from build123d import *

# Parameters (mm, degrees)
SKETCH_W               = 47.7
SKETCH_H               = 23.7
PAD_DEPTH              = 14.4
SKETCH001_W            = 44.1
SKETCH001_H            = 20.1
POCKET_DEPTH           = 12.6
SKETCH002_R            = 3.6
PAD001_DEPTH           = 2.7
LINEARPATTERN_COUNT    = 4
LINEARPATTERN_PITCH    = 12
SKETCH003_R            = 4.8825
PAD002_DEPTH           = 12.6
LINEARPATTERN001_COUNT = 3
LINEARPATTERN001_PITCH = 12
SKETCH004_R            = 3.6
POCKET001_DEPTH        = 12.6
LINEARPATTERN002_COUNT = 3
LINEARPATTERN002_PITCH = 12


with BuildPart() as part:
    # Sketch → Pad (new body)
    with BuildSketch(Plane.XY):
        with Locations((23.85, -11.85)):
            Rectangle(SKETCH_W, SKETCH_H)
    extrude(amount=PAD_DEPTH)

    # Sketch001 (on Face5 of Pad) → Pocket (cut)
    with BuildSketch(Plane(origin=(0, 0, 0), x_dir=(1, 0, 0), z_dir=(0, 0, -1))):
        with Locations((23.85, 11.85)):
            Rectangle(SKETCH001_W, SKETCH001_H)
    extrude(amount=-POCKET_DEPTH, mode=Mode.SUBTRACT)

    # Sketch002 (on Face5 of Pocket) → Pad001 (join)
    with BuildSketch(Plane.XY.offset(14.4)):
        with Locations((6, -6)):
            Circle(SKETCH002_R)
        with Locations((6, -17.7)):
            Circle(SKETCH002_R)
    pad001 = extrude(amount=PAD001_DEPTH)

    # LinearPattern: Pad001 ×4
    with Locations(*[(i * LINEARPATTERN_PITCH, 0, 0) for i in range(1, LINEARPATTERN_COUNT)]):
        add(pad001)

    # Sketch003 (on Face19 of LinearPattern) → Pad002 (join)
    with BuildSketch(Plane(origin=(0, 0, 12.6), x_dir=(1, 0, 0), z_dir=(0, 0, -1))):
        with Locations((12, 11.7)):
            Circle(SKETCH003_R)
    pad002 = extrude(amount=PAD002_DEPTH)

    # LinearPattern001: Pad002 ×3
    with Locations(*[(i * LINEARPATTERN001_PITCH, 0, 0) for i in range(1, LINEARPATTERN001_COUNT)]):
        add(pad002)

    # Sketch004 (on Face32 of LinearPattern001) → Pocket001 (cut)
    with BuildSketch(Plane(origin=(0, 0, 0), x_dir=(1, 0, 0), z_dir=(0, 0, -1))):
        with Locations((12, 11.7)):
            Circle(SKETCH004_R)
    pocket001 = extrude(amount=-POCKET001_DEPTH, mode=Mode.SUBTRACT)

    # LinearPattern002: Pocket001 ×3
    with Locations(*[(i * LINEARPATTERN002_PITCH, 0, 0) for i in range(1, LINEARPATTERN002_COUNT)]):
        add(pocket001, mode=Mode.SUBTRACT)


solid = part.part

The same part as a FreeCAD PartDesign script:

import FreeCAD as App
import Part
import Sketcher
from FreeCAD import Vector
Q = App.Units.Quantity

doc = App.newDocument("Part")
body = doc.addObject("PartDesign::Body", "Body")

# Sketch on XY plane
sketch1 = body.newObject("Sketcher::SketchObject", "Sketch")
sketch1.AttachmentSupport = (doc.getObject("XY_Plane"), [""])
sketch1.MapMode = "FlatFace"
sketch1.addGeometry([
    Part.LineSegment(Vector(0, 0, 0), Vector(0, -24, 0)),
    Part.LineSegment(Vector(0, -24, 0), Vector(48, -24, 0)),
    Part.LineSegment(Vector(48, -24, 0), Vector(48, 0, 0)),
    Part.LineSegment(Vector(48, 0, 0), Vector(0, 0, 0)),
], False)
sketch1.addConstraint([
    Sketcher.Constraint("Coincident", 0, 2, 1, 1),
    Sketcher.Constraint("Coincident", 1, 2, 2, 1),
    Sketcher.Constraint("Coincident", 2, 2, 3, 1),
    Sketcher.Constraint("Coincident", 3, 2, 0, 1),
    Sketcher.Constraint("Vertical", 0),
    Sketcher.Constraint("Horizontal", 1),
    Sketcher.Constraint("Vertical", 2),
    Sketcher.Constraint("Horizontal", 3),
    Sketcher.Constraint("Coincident", 3, 2, -1, 1),
    Sketcher.Constraint("DistanceX", 1, 1, 1, 2, Q("47.7 mm")),
    Sketcher.Constraint("DistanceY", 0, 2, 0, 1, Q("23.7 mm")),
])
pad1 = body.newObject("PartDesign::Pad", "Pad")
pad1.Profile = sketch1
pad1.Length = 14.4

# Sketch on XY plane
sketch2 = body.newObject("Sketcher::SketchObject", "Sketch001")
sketch2.AttachmentSupport = (doc.getObject("XY_Plane"), [""])
sketch2.MapMode = "FlatFace"
sketch2.addGeometry([
    Part.LineSegment(Vector(2, -22, 0), Vector(2, -2, 0)),
    Part.LineSegment(Vector(2, -2, 0), Vector(46, -2, 0)),
    Part.LineSegment(Vector(46, -2, 0), Vector(46, -22, 0)),
    Part.LineSegment(Vector(46, -22, 0), Vector(2, -22, 0)),
], False)
sketch2.addConstraint([
    Sketcher.Constraint("Coincident", 0, 2, 1, 1),
    Sketcher.Constraint("Coincident", 1, 2, 2, 1),
    Sketcher.Constraint("Coincident", 2, 2, 3, 1),
    Sketcher.Constraint("Coincident", 3, 2, 0, 1),
    Sketcher.Constraint("Vertical", 0),
    Sketcher.Constraint("Horizontal", 1),
    Sketcher.Constraint("Vertical", 2),
    Sketcher.Constraint("Horizontal", 3),
    Sketcher.Constraint("DistanceX", 1, 1, 1, 2, Q("44.1 mm")),
    Sketcher.Constraint("DistanceY", 0, 1, 0, 2, Q("20.1 mm")),
    Sketcher.Constraint("DistanceX", -1, 1, 0, 2, Q("1.8 mm")),
    Sketcher.Constraint("DistanceY", 0, 2, -1, 1, Q("1.8 mm")),
])
pocket1 = body.newObject("PartDesign::Pocket", "Pocket")
pocket1.Profile = sketch2
pocket1.Length = 12.6
pocket1.Reversed = True

# Sketch on XY plane
sketch3 = body.newObject("Sketcher::SketchObject", "Sketch002")
sketch3.AttachmentSupport = (doc.getObject("XY_Plane"), [""])
sketch3.MapMode = "FlatFace"
sketch3.AttachmentOffset = App.Placement(Vector(0, 0, 14.4), App.Rotation())
sketch3.addGeometry([
    Part.Circle(Vector(6, -6, 0), Vector(0, 0, 1), 3.6),
    Part.Circle(Vector(6, -17.7, 0), Vector(0, 0, 1), 3.6),
], False)
sketch3.addConstraint([
    Sketcher.Constraint("Equal", 0, 1),
    Sketcher.Constraint("Vertical", 0, 3, 1, 3),
    Sketcher.Constraint("Diameter", 0, Q("7.2 mm")),
    Sketcher.Constraint("DistanceX", -1, 1, 0, 3, Q("6 mm")),
    Sketcher.Constraint("DistanceY", 0, 3, -1, 1, Q("6 mm")),
    Sketcher.Constraint("DistanceY", 1, 3, -1, 1, Q("17.7 mm")),
])
pad2 = body.newObject("PartDesign::Pad", "Pad001")
pad2.Profile = sketch3
pad2.Length = 2.7
doc.recompute()

linearpattern = body.newObject("PartDesign::LinearPattern", "LinearPattern")
linearpattern.Originals = [pad2]
linearpattern.Direction = (doc.getObject("X_Axis"), [""])
linearpattern.Mode = "offset"
linearpattern.Offset = 12
linearpattern.Occurrences = 4
body.Tip = linearpattern

# Sketch on XY plane
sketch4 = body.newObject("Sketcher::SketchObject", "Sketch003")
sketch4.AttachmentSupport = (doc.getObject("XY_Plane"), [""])
sketch4.MapMode = "FlatFace"
sketch4.AttachmentOffset = App.Placement(Vector(0, 0, 12.6), App.Rotation())
sketch4.addGeometry(Part.Circle(Vector(12, -11.7, 0), Vector(0, 0, 1), 4.9), False)
sketch4.addConstraint([
    Sketcher.Constraint("Diameter", 0, Q("9.765 mm")),
    Sketcher.Constraint("DistanceX", -1, 1, 0, 3, Q("12 mm")),
    Sketcher.Constraint("DistanceY", 0, 3, -1, 1, Q("11.7 mm")),
])
pad3 = body.newObject("PartDesign::Pad", "Pad002")
pad3.Profile = sketch4
pad3.Length = 12.6
pad3.Reversed = True
doc.recompute()

linearpattern2 = body.newObject("PartDesign::LinearPattern", "LinearPattern001")
linearpattern2.Originals = [pad3]
linearpattern2.Direction = (doc.getObject("X_Axis"), [""])
linearpattern2.Mode = "offset"
linearpattern2.Offset = 12
linearpattern2.Occurrences = 3
body.Tip = linearpattern2

# Sketch on XY plane
sketch5 = body.newObject("Sketcher::SketchObject", "Sketch004")
sketch5.AttachmentSupport = (doc.getObject("XY_Plane"), [""])
sketch5.MapMode = "FlatFace"
sketch5.addGeometry(Part.Circle(Vector(12, -11.7, 0), Vector(0, 0, 1), 3.6), False)
sketch5.addConstraint([
    Sketcher.Constraint("Diameter", 0, Q("7.2 mm")),
    Sketcher.Constraint("DistanceX", -1, 1, 0, 3, Q("12 mm")),
    Sketcher.Constraint("DistanceY", 0, 3, -1, 1, Q("11.7 mm")),
])
pocket2 = body.newObject("PartDesign::Pocket", "Pocket001")
pocket2.Profile = sketch5
pocket2.Length = 12.6
pocket2.Reversed = True
doc.recompute()

linearpattern3 = body.newObject("PartDesign::LinearPattern", "LinearPattern002")
linearpattern3.Originals = [pocket2]
linearpattern3.Direction = (doc.getObject("X_Axis"), [""])
linearpattern3.Mode = "offset"
linearpattern3.Offset = 12
linearpattern3.Occurrences = 3
body.Tip = linearpattern3

doc.recompute()
